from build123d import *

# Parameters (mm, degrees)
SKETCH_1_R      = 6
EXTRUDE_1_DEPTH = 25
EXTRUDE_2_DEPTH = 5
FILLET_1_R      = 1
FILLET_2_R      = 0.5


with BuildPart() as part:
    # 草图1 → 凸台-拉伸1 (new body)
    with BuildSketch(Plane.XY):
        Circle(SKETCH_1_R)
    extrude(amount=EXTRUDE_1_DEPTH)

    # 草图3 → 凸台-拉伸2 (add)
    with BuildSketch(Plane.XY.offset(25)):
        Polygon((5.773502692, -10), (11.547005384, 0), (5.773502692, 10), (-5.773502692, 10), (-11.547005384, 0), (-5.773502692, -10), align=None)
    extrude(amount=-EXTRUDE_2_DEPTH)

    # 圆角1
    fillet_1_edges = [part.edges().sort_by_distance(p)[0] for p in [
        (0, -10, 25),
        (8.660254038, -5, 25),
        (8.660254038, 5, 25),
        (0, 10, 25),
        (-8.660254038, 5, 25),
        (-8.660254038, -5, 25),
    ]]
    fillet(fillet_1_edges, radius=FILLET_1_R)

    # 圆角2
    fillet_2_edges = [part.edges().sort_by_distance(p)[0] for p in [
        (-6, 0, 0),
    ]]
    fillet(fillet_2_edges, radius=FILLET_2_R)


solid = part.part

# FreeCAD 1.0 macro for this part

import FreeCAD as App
import Part
import Sketcher

V = App.Vector
Q = App.Units.Quantity


def edges_at(feature, points):
    """Names of the edges that pass closest to the given points."""
    edges = feature.Shape.Edges
    near = lambda p: min(range(len(edges)), key=lambda i: edges[i].distToShape(Part.Vertex(*p))[0])
    return sorted({f"Edge{near(p) + 1}" for p in points})


def add_polygon(sketch, points):
    """Adds a closed chain of lines whose ends are joined by coincident constraints."""
    first, n = sketch.GeometryCount, len(points)
    for a, b in zip(points, points[1:] + points[:1]):
        sketch.addGeometry(Part.LineSegment(App.Vector(*a, 0), App.Vector(*b, 0)), False)
    for i in range(n):
        sketch.addConstraint(Sketcher.Constraint("Coincident", first + i, 2, first + (i + 1) % n, 1))

doc = App.newDocument("Part")
body = doc.addObject("PartDesign::Body", "Body")

# Sketch on XY plane
sketch1 = doc.addObject("Sketcher::SketchObject", "Sketch")
body.addObject(sketch1)
sketch1.AttachmentSupport = (doc.XY_Plane, [""])
sketch1.MapMode = "FlatFace"
sketch1.addGeometry(Part.Circle(V(0, 0, 0), V(0, 0, 1), 6), False)
sketch1.addConstraint([
    Sketcher.Constraint("Coincident", 0, 3, -1, 1),
    Sketcher.Constraint("Diameter", 0, Q("12 mm")),
])
pad1 = doc.addObject("PartDesign::Pad", "Pad")
body.addObject(pad1)
pad1.Profile = sketch1
pad1.Length = 25

# Sketch on XY plane
sketch2 = doc.addObject("Sketcher::SketchObject", "Sketch001")
body.addObject(sketch2)
sketch2.AttachmentSupport = (doc.XY_Plane, [""])
sketch2.MapMode = "FlatFace"
sketch2.AttachmentOffset = App.Placement(V(0, 0, 25), App.Rotation())
add_polygon(sketch2, [(6, -10), (12, 0), (6, 10), (-6, 10), (-12, 0), (-6, -10)])  # lines 0-5
sketch2.addConstraint([
    Sketcher.Constraint("Horizontal", 2),
    Sketcher.Constraint("Horizontal", 5),
    Sketcher.Constraint("Symmetric", 0, 2, 3, 2, -1, 1),
    Sketcher.Constraint("Symmetric", 1, 2, 4, 2, -1, 1),
    Sketcher.Constraint("PointOnObject", 0, 2, -1),
    Sketcher.Constraint("Parallel", 0, 3),
    Sketcher.Constraint("Vertical", 2, 2, 4, 2),
    Sketcher.Constraint("Angle", 0, Q("60 deg")),
    Sketcher.Constraint("DistanceY", -1, 1, 1, 2, Q("10 mm")),
    Sketcher.Constraint("DistanceX", 2, 2, 2, 1, Q("11.547005 mm")),
])
pad2 = doc.addObject("PartDesign::Pad", "Pad001")
body.addObject(pad2)
pad2.Profile = sketch2
pad2.Length = 5
pad2.Reversed = True
doc.recompute()

fillet = doc.addObject("PartDesign::Fillet", "Fillet")
body.addObject(fillet)
fillet.Base = (pad2, edges_at(pad2, [
    (0, -10, 25),
    (8.66, -5, 25),
    (8.66, 5, 25),
    (0, 10, 25),
    (-8.66, 5, 25),
    (-8.66, -5, 25),
]))
fillet.Radius = 1
doc.recompute()

fillet2 = doc.addObject("PartDesign::Fillet", "Fillet001")
body.addObject(fillet2)
fillet2.Base = (fillet, edges_at(fillet, [(-6, 0, 0)]))
fillet2.Radius = 0.5

doc.recompute()
